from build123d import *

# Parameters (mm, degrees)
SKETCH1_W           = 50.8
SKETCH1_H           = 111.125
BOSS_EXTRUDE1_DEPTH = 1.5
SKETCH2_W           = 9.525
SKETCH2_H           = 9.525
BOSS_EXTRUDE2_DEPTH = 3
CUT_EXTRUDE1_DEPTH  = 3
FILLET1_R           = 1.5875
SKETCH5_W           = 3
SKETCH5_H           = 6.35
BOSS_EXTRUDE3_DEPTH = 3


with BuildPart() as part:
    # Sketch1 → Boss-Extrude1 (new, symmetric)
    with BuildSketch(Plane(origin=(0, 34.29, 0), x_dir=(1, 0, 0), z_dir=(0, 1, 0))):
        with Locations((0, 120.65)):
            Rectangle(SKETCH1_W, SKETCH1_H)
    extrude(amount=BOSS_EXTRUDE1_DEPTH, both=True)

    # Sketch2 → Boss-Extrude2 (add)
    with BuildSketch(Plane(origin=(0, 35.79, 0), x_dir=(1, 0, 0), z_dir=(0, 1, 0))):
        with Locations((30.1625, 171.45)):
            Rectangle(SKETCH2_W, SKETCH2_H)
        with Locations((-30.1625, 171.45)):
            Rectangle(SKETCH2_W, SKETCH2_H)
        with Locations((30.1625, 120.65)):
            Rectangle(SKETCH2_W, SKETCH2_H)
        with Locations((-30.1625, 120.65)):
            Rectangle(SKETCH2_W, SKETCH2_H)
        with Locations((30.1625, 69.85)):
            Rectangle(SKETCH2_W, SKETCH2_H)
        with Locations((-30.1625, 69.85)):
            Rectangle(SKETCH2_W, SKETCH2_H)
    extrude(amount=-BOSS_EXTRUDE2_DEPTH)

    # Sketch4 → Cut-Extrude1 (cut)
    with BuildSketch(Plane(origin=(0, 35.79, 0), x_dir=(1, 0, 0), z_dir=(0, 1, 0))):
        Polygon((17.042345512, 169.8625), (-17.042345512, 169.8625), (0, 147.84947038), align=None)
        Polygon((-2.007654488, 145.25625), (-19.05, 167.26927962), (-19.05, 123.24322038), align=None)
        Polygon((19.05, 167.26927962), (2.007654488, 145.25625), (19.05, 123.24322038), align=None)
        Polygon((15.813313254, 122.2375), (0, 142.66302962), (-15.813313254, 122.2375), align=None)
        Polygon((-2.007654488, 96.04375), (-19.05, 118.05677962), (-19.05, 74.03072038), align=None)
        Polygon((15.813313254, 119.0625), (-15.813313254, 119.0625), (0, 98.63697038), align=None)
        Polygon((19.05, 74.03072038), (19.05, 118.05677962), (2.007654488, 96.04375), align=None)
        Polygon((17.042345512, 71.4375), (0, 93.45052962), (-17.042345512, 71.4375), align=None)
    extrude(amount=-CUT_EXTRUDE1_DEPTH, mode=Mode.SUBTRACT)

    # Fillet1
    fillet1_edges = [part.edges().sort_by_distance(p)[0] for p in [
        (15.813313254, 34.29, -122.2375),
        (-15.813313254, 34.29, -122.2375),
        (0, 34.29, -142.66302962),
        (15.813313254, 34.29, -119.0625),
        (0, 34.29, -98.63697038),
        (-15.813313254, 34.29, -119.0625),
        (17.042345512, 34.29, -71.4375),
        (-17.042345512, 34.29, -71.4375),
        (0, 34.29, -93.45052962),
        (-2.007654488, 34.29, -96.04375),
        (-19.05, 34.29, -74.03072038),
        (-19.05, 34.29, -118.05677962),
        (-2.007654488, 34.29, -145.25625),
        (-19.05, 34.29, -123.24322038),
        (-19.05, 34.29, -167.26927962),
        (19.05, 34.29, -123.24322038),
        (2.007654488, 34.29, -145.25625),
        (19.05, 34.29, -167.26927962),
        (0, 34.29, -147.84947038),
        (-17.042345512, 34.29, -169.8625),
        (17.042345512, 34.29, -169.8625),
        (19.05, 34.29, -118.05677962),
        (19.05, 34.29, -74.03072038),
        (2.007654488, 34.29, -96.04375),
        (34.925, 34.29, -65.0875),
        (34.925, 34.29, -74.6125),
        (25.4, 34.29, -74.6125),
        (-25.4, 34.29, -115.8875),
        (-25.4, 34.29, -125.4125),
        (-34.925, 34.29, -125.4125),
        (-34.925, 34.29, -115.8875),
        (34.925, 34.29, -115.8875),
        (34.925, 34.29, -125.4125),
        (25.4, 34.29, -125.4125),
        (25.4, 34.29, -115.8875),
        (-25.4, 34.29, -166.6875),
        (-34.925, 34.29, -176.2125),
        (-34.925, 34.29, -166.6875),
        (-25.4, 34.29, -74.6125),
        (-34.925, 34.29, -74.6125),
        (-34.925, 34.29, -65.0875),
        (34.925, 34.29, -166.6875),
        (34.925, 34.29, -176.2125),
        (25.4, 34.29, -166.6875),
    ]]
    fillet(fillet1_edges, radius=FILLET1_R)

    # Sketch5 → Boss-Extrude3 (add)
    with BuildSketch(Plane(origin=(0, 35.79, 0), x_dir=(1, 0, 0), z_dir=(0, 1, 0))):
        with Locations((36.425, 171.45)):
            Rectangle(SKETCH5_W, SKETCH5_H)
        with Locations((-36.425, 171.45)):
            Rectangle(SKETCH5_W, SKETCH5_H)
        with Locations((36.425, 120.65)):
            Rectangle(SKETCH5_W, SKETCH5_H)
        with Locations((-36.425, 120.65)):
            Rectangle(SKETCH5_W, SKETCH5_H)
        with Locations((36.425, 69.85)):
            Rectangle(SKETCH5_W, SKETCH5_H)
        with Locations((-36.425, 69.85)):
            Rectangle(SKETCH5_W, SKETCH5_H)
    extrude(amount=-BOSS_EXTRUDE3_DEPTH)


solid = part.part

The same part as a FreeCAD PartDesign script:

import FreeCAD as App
import Part
import Sketcher
from FreeCAD import Vector
Q = App.Units.Quantity


def edges_at(feature, points):
    """Names of the edges that pass closest to the given points."""
    edges = feature.Shape.Edges
    near = lambda p: min(range(len(edges)), key=lambda i: edges[i].distToShape(Part.Vertex(*p))[0])
    return sorted({f"Edge{near(p) + 1}" for p in points})


def add_polygon(sketch, points):
    """Adds a closed chain of lines whose ends are joined by coincident constraints."""
    first, n = sketch.GeometryCount, len(points)
    for a, b in zip(points, points[1:] + points[:1]):
        sketch.addGeometry(Part.LineSegment(App.Vector(*a, 0), App.Vector(*b, 0)), False)
    for i in range(n):
        sketch.addConstraint(Sketcher.Constraint("Coincident", first + i, 2, first + (i + 1) % n, 1))

doc = App.newDocument("Part")
body = doc.addObject("PartDesign::Body", "Body")

sketch1 = body.newObject("Sketcher::SketchObject", "Sketch")
sketch1.AttachmentSupport = (doc.getObject("XZ_Plane"), [""])
sketch1.MapMode = "FlatFace"
sketch1.AttachmentOffset = App.Placement(Vector(0, 0, -1.35 * 25.4), App.Rotation())
add_polygon(sketch1, [(-25.4, -176.2125), (-25.4, -65.0875), (25.4, -65.0875), (25.4, -176.2125)])
sketch1.addConstraint([
    Sketcher.Constraint("Vertical", 0),
    Sketcher.Constraint("Horizontal", 1),
    Sketcher.Constraint("Vertical", 2),
    Sketcher.Constraint("Horizontal", 3),
    Sketcher.Constraint("DistanceX", 1, 1, 1, 2, Q("2 in")),
    Sketcher.Constraint("DistanceX", 0, 2, -1, 1, Q("1 in")),
    Sketcher.Constraint("DistanceY", 0, 1, 0, 2, Q("4.375 in")),
    Sketcher.Constraint("DistanceY", 0, 2, -1, 1, Q("2.5625 in")),
])
pad1 = body.newObject("PartDesign::Pad", "Pad")
pad1.Profile = sketch1
pad1.Length = 3
pad1.Midplane = True

sketch2 = body.newObject("Sketcher::SketchObject", "Sketch001")
sketch2.AttachmentSupport = (doc.getObject("XZ_Plane"), [""])
sketch2.MapMode = "FlatFace"
sketch2.AttachmentOffset = App.Placement(Vector(0, 0, -35.79), App.Rotation())
add_polygon(sketch2, [(25.4, -176.2125), (25.4, -166.6875), (34.925, -166.6875), (34.925, -176.2125)])
add_polygon(sketch2, [(-34.925, -176.2125), (-34.925, -166.6875), (-25.4, -166.6875), (-25.4, -176.2125)])
add_polygon(sketch2, [(25.4, -125.4125), (25.4, -115.8875), (34.925, -115.8875), (34.925, -125.4125)])
add_polygon(sketch2, [(-34.925, -125.4125), (-34.925, -115.8875), (-25.4, -115.8875), (-25.4, -125.4125)])
add_polygon(sketch2, [(25.4, -74.6125), (25.4, -65.0875), (34.925, -65.0875), (34.925, -74.6125)])
add_polygon(sketch2, [(-34.925, -74.6125), (-34.925, -65.0875), (-25.4, -65.0875), (-25.4, -74.6125)])
sketch2.addConstraint([
    Sketcher.Constraint("Vertical", 0),
    Sketcher.Constraint("Horizontal", 1),
    Sketcher.Constraint("Vertical", 2),
    Sketcher.Constraint("Horizontal", 3),
    Sketcher.Constraint("Vertical", 4),
    Sketcher.Constraint("Horizontal", 5),
    Sketcher.Constraint("Vertical", 6),
    Sketcher.Constraint("Horizontal", 7),
    Sketcher.Constraint("Vertical", 8),
    Sketcher.Constraint("Horizontal", 9),
    Sketcher.Constraint("Vertical", 10),
    Sketcher.Constraint("Horizontal", 11),
    Sketcher.Constraint("Vertical", 12),
    Sketcher.Constraint("Horizontal", 13),
    Sketcher.Constraint("Vertical", 14),
    Sketcher.Constraint("Horizontal", 15),
    Sketcher.Constraint("Vertical", 16),
    Sketcher.Constraint("Horizontal", 17),
    Sketcher.Constraint("Vertical", 18),
    Sketcher.Constraint("Horizontal", 19),
    Sketcher.Constraint("Vertical", 20),
    Sketcher.Constraint("Horizontal", 21),
    Sketcher.Constraint("Vertical", 22),
    Sketcher.Constraint("Horizontal", 23),
    Sketcher.Constraint("Symmetric", 1, 2, 4, 2, -2),
    Sketcher.Constraint("Symmetric", 3, 2, 6, 2, -2),
    Sketcher.Constraint("Symmetric", 9, 2, 12, 2, -2),
    Sketcher.Constraint("Symmetric", 11, 2, 14, 2, -2),
    Sketcher.Constraint("Symmetric", 17, 2, 20, 2, -2),
    Sketcher.Constraint("Symmetric", 19, 2, 22, 2, -2),
    Sketcher.Constraint("Vertical", 3, 2, 8, 2),
    Sketcher.Constraint("Vertical", 2, 2, 9, 2),
    Sketcher.Constraint("Vertical", 11, 2, 16, 2),
    Sketcher.Constraint("Vertical", 10, 2, 17, 2),
    Sketcher.Constraint("Equal", 23, 0),
    Sketcher.Constraint("Equal", 6, 8),
    Sketcher.Constraint("Equal", 14, 16),
    Sketcher.Constraint("DistanceX", -1, 1, 0, 2, Q("1 in")),
    Sketcher.Constraint("DistanceY", 0, 2, 8, 2, Q("2 in")),
    Sketcher.Constraint("DistanceY", 8, 2, 16, 2, Q("2 in")),
    Sketcher.Constraint("DistanceX", 1, 1, 1, 2, Q("0.375 in")),
    Sketcher.Constraint("DistanceY", 0, 2, -1, 1, Q("6.5625 in")),
])
pad2 = body.newObject("PartDesign::Pad", "Pad001")
pad2.Profile = sketch2
pad2.Length = 3

sketch3 = body.newObject("Sketcher::SketchObject", "Sketch002")
sketch3.AttachmentSupport = (doc.getObject("XZ_Plane"), [""])
sketch3.MapMode = "FlatFace"
sketch3.AttachmentOffset = App.Placement(Vector(0, 0, -35.79), App.Rotation())
add_polygon(sketch3, [(17.042346, -169.8625), (-17.042346, -169.8625), (0, -147.84947)])
add_polygon(sketch3, [(-2.007654, -145.25625), (-19.05, -167.26928), (-19.05, -123.24322)])
add_polygon(sketch3, [(19.05, -167.26928), (2.007654, -145.25625), (19.05, -123.24322)])
add_polygon(sketch3, [(15.813313, -122.2375), (0, -142.66303), (-15.813313, -122.2375)])
add_polygon(sketch3, [(-2.007654, -96.04375), (-19.05, -118.05678), (-19.05, -74.03072)])
add_polygon(sketch3, [(15.813313, -119.0625), (-15.813313, -119.0625), (0, -98.63697)])
add_polygon(sketch3, [(19.05, -74.03072), (19.05, -118.05678), (2.007654, -96.04375)])
add_polygon(sketch3, [(17.042346, -71.4375), (0, -93.45053), (-17.042346, -71.4375)])
sketch3.addConstraint([
    Sketcher.Constraint("Horizontal", 0),
    Sketcher.Constraint("Vertical", 4),
    Sketcher.Constraint("Vertical", 8),
    Sketcher.Constraint("Horizontal", 11),
    Sketcher.Constraint("Vertical", 13),
    Sketcher.Constraint("Horizontal", 15),
    Sketcher.Constraint("Vertical", 18),
    Sketcher.Constraint("Horizontal", 23),
    Sketcher.Constraint("Symmetric", 5, 2, 6, 2, -2),
    Sketcher.Constraint("Symmetric", 4, 2, 7, 2, -2),
    Sketcher.Constraint("Symmetric", 12, 2, 18, 2, -2),
    Sketcher.Constraint("Symmetric", 14, 2, 19, 2, -2),
    Sketcher.Constraint("PointOnObject", 1, 2, -2),
    Sketcher.Constraint("PointOnObject", 9, 2, -2),
    Sketcher.Constraint("PointOnObject", 16, 2, -2),
    Sketcher.Constraint("PointOnObject", 21, 2, -2),
    Sketcher.Constraint("Parallel", 1, 3),
    Sketcher.Constraint("Parallel", 2, 5),
    Sketcher.Constraint("Parallel", 5, 6),
    Sketcher.Constraint("Parallel", 3, 7),
    Sketcher.Constraint("Parallel", 7, 9),
    Sketcher.Constraint("Parallel", 6, 10),
    Sketcher.Constraint("Parallel", 9, 12),
    Sketcher.Constraint("Parallel", 10, 14),
    Sketcher.Constraint("Parallel", 12, 16),
    Sketcher.Constraint("Parallel", 14, 17),
    Sketcher.Constraint("Parallel", 16, 20),
    Sketcher.Constraint("Parallel", 20, 21),
    Sketcher.Constraint("Parallel", 19, 22),
    Sketcher.Constraint("Vertical", 4, 2, 12, 2),
    Sketcher.Constraint("Vertical", 5, 2, 14, 2),
    Sketcher.Constraint("Vertical", 10, 2, 15, 2),
    Sketcher.Constraint("Vertical", 0, 2, 22, 2),
    Sketcher.Constraint("Equal", 2, 3),
    Sketcher.Constraint("DistanceX", 4, 2, 7, 2, Q("1.5 in")),
    Sketcher.Constraint("DistanceY", 0, 2, -1, 1, Q("6.6875 in")),
    Sketcher.Constraint("DistanceY", 5, 2, -1, 1, Q("5.71875 in")),
    Sketcher.Constraint("DistanceY", 10, 2, -1, 1, Q("4.8125 in")),
    Sketcher.Constraint("DistanceY", 14, 2, -1, 1, Q("3.78125 in")),
    Sketcher.Constraint("DistanceY", 15, 2, -1, 1, Q("4.6875 in")),
    Sketcher.Constraint("DistanceY", 22, 2, -1, 1, Q("2.8125 in")),
    Sketcher.Constraint("DistanceY", 9, 2, 12, 2, Q("0.96875 in")),
    Sketcher.Constraint("DistanceX", 0, 2, 0, 1, 34.084691),
    Sketcher.Constraint("DistanceY", 4, 1, 4, 2, 44.026059),
])
pocket1 = body.newObject("PartDesign::Pocket", "Pocket")
pocket1.Profile = sketch3
pocket1.Length = 3
pocket1.Reversed = True
doc.recompute()

fillet = body.newObject("PartDesign::Fillet", "Fillet")
fillet.Base = (pocket1, edges_at(pocket1, [
    (15.813, 34.29, -122.237),
    (-15.813, 34.29, -122.237),
    (0, 34.29, -142.663),
    (15.813, 34.29, -119.062),
    (0, 34.29, -98.637),
    (-15.813, 34.29, -119.062),
    (17.042, 34.29, -71.438),
    (-17.042, 34.29, -71.438),
    (0, 34.29, -93.451),
    (-2.008, 34.29, -96.044),
    (-19.05, 34.29, -74.031),
    (-19.05, 34.29, -118.057),
    (-2.008, 34.29, -145.256),
    (-19.05, 34.29, -123.243),
    (-19.05, 34.29, -167.269),
    (19.05, 34.29, -123.243),
    (2.008, 34.29, -145.256),
    (19.05, 34.29, -167.269),
    (0, 34.29, -147.849),
    (-17.042, 34.29, -169.863),
    (17.042, 34.29, -169.863),
    (19.05, 34.29, -118.057),
    (19.05, 34.29, -74.031),
    (2.008, 34.29, -96.044),
    (34.925, 34.29, -65.088),
    (34.925, 34.29, -74.612),
    (25.4, 34.29, -74.612),
    (-25.4, 34.29, -115.888),
    (-25.4, 34.29, -125.412),
    (-34.925, 34.29, -125.412),
    (-34.925, 34.29, -115.888),
    (34.925, 34.29, -115.888),
    (34.925, 34.29, -125.412),
    (25.4, 34.29, -125.412),
    (25.4, 34.29, -115.888),
    (-25.4, 34.29, -166.688),
    (-34.925, 34.29, -176.213),
    (-34.925, 34.29, -166.688),
    (-25.4, 34.29, -74.612),
    (-34.925, 34.29, -74.612),
    (-34.925, 34.29, -65.088),
    (34.925, 34.29, -166.688),
    (34.925, 34.29, -176.213),
    (25.4, 34.29, -166.688),
]))
fillet.Radius = Q("0.0625 in")

sketch4 = body.newObject("Sketcher::SketchObject", "Sketch003")
sketch4.AttachmentSupport = (doc.getObject("XZ_Plane"), [""])
sketch4.MapMode = "FlatFace"
sketch4.AttachmentOffset = App.Placement(Vector(0, 0, -35.79), App.Rotation())
add_polygon(sketch4, [(34.925, -174.625), (34.925, -168.275), (37.925, -168.275), (37.925, -174.625)])
add_polygon(sketch4, [(-37.925, -174.625), (-37.925, -168.275), (-34.925, -168.275), (-34.925, -174.625)])
add_polygon(sketch4, [(34.925, -123.825), (34.925, -117.475), (37.925, -117.475), (37.925, -123.825)])
add_polygon(sketch4, [(-37.925, -123.825), (-37.925, -117.475), (-34.925, -117.475), (-34.925, -123.825)])
add_polygon(sketch4, [(34.925, -73.025), (34.925, -66.675), (37.925, -66.675), (37.925, -73.025)])
add_polygon(sketch4, [(-37.925, -73.025), (-37.925, -66.675), (-34.925, -66.675), (-34.925, -73.025)])
sketch4.addConstraint([
    Sketcher.Constraint("Vertical", 0),
    Sketcher.Constraint("Horizontal", 1),
    Sketcher.Constraint("Vertical", 2),
    Sketcher.Constraint("Horizontal", 3),
    Sketcher.Constraint("Vertical", 4),
    Sketcher.Constraint("Horizontal", 5),
    Sketcher.Constraint("Vertical", 6),
    Sketcher.Constraint("Horizontal", 7),
    Sketcher.Constraint("Vertical", 8),
    Sketcher.Constraint("Horizontal", 9),
    Sketcher.Constraint("Vertical", 10),
    Sketcher.Constraint("Horizontal", 11),
    Sketcher.Constraint("Vertical", 12),
    Sketcher.Constraint("Horizontal", 13),
    Sketcher.Constraint("Vertical", 14),
    Sketcher.Constraint("Horizontal", 15),
    Sketcher.Constraint("Vertical", 16),
    Sketcher.Constraint("Horizontal", 17),
    Sketcher.Constraint("Vertical", 18),
    Sketcher.Constraint("Horizontal", 19),
    Sketcher.Constraint("Vertical", 20),
    Sketcher.Constraint("Horizontal", 21),
    Sketcher.Constraint("Vertical", 22),
    Sketcher.Constraint("Horizontal", 23),
    Sketcher.Constraint("Symmetric", 1, 2, 4, 2, -2),
    Sketcher.Constraint("Symmetric", 3, 2, 6, 2, -2),
    Sketcher.Constraint("Symmetric", 9, 2, 12, 2, -2),
    Sketcher.Constraint("Symmetric", 11, 2, 14, 2, -2),
    Sketcher.Constraint("Symmetric", 17, 2, 20, 2, -2),
    Sketcher.Constraint("Symmetric", 19, 2, 22, 2, -2),
    Sketcher.Constraint("Vertical", 3, 2, 8, 2),
    Sketcher.Constraint("Vertical", 2, 2, 9, 2),
    Sketcher.Constraint("Vertical", 11, 2, 16, 2),
    Sketcher.Constraint("Vertical", 10, 2, 17, 2),
    Sketcher.Constraint("Equal", 6, 8),
    Sketcher.Constraint("Equal", 14, 16),
    Sketcher.Constraint("DistanceY", 0, 2, 8, 2, Q("2 in")),
    Sketcher.Constraint("DistanceY", 8, 2, 16, 2, Q("2 in")),
    Sketcher.Constraint("DistanceY", 0, 1, 0, 2, Q("0.25 in")),
    Sketcher.Constraint("DistanceX", 5, 2, 0, 2, Q("2.75 in")),
    Sketcher.Constraint("DistanceY", 0, 2, -1, 1, Q("6.625 in")),
    Sketcher.Constraint("DistanceX", 1, 1, 1, 2, 3.0),
])
pad3 = body.newObject("PartDesign::Pad", "Pad002")
pad3.Profile = sketch4
pad3.Length = 3

doc.recompute()
